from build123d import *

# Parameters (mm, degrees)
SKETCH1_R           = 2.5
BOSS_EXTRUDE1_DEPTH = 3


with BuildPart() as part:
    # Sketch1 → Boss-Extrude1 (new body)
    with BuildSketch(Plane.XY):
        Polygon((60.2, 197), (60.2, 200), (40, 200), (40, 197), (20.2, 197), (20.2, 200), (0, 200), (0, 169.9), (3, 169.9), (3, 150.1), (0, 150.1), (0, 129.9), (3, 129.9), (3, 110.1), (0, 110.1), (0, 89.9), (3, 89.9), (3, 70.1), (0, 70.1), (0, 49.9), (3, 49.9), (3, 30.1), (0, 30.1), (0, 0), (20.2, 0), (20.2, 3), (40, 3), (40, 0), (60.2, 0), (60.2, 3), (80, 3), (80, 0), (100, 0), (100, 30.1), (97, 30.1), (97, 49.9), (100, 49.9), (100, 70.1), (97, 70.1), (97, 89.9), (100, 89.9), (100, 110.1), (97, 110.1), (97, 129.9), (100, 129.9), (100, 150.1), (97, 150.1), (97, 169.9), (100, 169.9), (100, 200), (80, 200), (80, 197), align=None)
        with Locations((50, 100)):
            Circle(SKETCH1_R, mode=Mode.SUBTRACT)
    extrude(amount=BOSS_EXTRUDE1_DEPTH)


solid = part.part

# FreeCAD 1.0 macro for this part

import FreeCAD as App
import Part
import Sketcher

V = App.Vector


def add_polygon(sketch, points):
    """Adds a closed chain of lines whose ends are joined by coincident constraints."""
    first, n = sketch.GeometryCount, len(points)
    for a, b in zip(points, points[1:] + points[:1]):
        sketch.addGeometry(Part.LineSegment(App.Vector(*a, 0), App.Vector(*b, 0)), False)
    for i in range(n):
        sketch.addConstraint(Sketcher.Constraint("Coincident", first + i, 2, first + (i + 1) % n, 1))

doc = App.newDocument("Part")
body = doc.addObject("PartDesign::Body", "Body")

# Sketch on XY plane
sketch1 = doc.addObject("Sketcher::SketchObject", "Sketch")
body.addObject(sketch1)
sketch1.AttachmentSupport = (doc.XY_Plane, [""])
sketch1.MapMode = "FlatFace"
add_polygon(sketch1, [(60.2, 197), (60.2, 200), (40, 200), (40, 197), (20.2, 197), (20.2, 200), (0, 200), (0, 169.9), (3, 169.9), (3, 150.1), (0, 150.1), (0, 129.9), (3, 129.9), (3, 110.1), (0, 110.1), (0, 89.9), (3, 89.9), (3, 70.1), (0, 70.1), (0, 49.9), (3, 49.9), (3, 30.1), (0, 30.1), (0, 0), (20.2, 0), (20.2, 3), (40, 3), (40, 0), (60.2, 0), (60.2, 3), (80, 3), (80, 0), (100, 0), (100, 30.1), (97, 30.1), (97, 49.9), (100, 49.9), (100, 70.1), (97, 70.1), (97, 89.9), (100, 89.9), (100, 110.1), (97, 110.1), (97, 129.9), (100, 129.9), (100, 150.1), (97, 150.1), (97, 169.9), (100, 169.9), (100, 200), (80, 200), (80, 197)])  # lines 0-51
sketch1.addGeometry(Part.Circle(V(50, 100, 0), V(0, 0, 1), 2.5), False)  # 52
sketch1.addConstraint([
    Sketcher.Constraint("Vertical", 0),
    Sketcher.Constraint("Horizontal", 1),
    Sketcher.Constraint("Vertical", 2),
    Sketcher.Constraint("Horizontal", 3),
    Sketcher.Constraint("Vertical", 4),
    Sketcher.Constraint("Horizontal", 5),
    Sketcher.Constraint("Vertical", 6),
    Sketcher.Constraint("Horizontal", 7),
    Sketcher.Constraint("Vertical", 8),
    Sketcher.Constraint("Horizontal", 9),
    Sketcher.Constraint("Vertical", 10),
    Sketcher.Constraint("Horizontal", 11),
    Sketcher.Constraint("Vertical", 12),
    Sketcher.Constraint("Horizontal", 13),
    Sketcher.Constraint("Vertical", 14),
    Sketcher.Constraint("Horizontal", 15),
    Sketcher.Constraint("Vertical", 16),
    Sketcher.Constraint("Horizontal", 17),
    Sketcher.Constraint("Vertical", 18),
    Sketcher.Constraint("Horizontal", 19),
    Sketcher.Constraint("Vertical", 20),
    Sketcher.Constraint("Horizontal", 21),
    Sketcher.Constraint("Vertical", 22),
    Sketcher.Constraint("Horizontal", 23),
    Sketcher.Constraint("Vertical", 24),
    Sketcher.Constraint("Horizontal", 25),
    Sketcher.Constraint("Vertical", 26),
    Sketcher.Constraint("Horizontal", 27),
    Sketcher.Constraint("Vertical", 28),
    Sketcher.Constraint("Horizontal", 29),
    Sketcher.Constraint("Vertical", 30),
    Sketcher.Constraint("Horizontal", 31),
    Sketcher.Constraint("Vertical", 32),
    Sketcher.Constraint("Horizontal", 33),
    Sketcher.Constraint("Vertical", 34),
    Sketcher.Constraint("Horizontal", 35),
    Sketcher.Constraint("Vertical", 36),
    Sketcher.Constraint("Horizontal", 37),
    Sketcher.Constraint("Vertical", 38),
    Sketcher.Constraint("Horizontal", 39),
    Sketcher.Constraint("Vertical", 40),
    Sketcher.Constraint("Horizontal", 41),
    Sketcher.Constraint("Vertical", 42),
    Sketcher.Constraint("Horizontal", 43),
    Sketcher.Constraint("Vertical", 44),
    Sketcher.Constraint("Horizontal", 45),
    Sketcher.Constraint("Vertical", 46),
    Sketcher.Constraint("Horizontal", 47),
    Sketcher.Constraint("Vertical", 48),
    Sketcher.Constraint("Horizontal", 49),
    Sketcher.Constraint("Vertical", 50),
    Sketcher.Constraint("Horizontal", 51),
    Sketcher.Constraint("Coincident", 22, 2, -1, 1),
    Sketcher.Constraint("PointOnObject", 5, 2, -2),
    Sketcher.Constraint("PointOnObject", 9, 2, -2),
    Sketcher.Constraint("PointOnObject", 13, 2, -2),
    Sketcher.Constraint("PointOnObject", 17, 2, -2),
    Sketcher.Constraint("PointOnObject", 26, 2, -1),
    Sketcher.Constraint("PointOnObject", 30, 2, -1),
    Sketcher.Constraint("Horizontal", 1, 2, 4, 2),
    Sketcher.Constraint("Horizontal", 25, 2, 28, 2),
    Sketcher.Constraint("Horizontal", 21, 2, 32, 2),
    Sketcher.Constraint("Horizontal", 19, 2, 34, 2),
    Sketcher.Constraint("Horizontal", 17, 2, 36, 2),
    Sketcher.Constraint("Horizontal", 15, 2, 38, 2),
    Sketcher.Constraint("Horizontal", 13, 2, 40, 2),
    Sketcher.Constraint("Horizontal", 11, 2, 42, 2),
    Sketcher.Constraint("Horizontal", 9, 2, 44, 2),
    Sketcher.Constraint("Horizontal", 7, 2, 46, 2),
    Sketcher.Constraint("Horizontal", 5, 2, 48, 2),
    Sketcher.Constraint("Horizontal", 3, 2, 50, 2),
    Sketcher.Constraint("Vertical", 8, 2, 11, 2),
    Sketcher.Constraint("Vertical", 12, 2, 15, 2),
    Sketcher.Constraint("Vertical", 16, 2, 19, 2),
    Sketcher.Constraint("Vertical", 4, 2, 23, 2),
    Sketcher.Constraint("Vertical", 2, 2, 25, 2),
    Sketcher.Constraint("Vertical", 0, 2, 27, 2),
    Sketcher.Constraint("Vertical", 32, 2, 35, 2),
    Sketcher.Constraint("Vertical", 34, 2, 37, 2),
    Sketcher.Constraint("Vertical", 36, 2, 39, 2),
    Sketcher.Constraint("Vertical", 38, 2, 41, 2),
    Sketcher.Constraint("Vertical", 40, 2, 43, 2),
    Sketcher.Constraint("Vertical", 42, 2, 45, 2),
    Sketcher.Constraint("Vertical", 44, 2, 47, 2),
    Sketcher.Constraint("Vertical", 30, 2, 49, 2),
    Sketcher.Constraint("Equal", 1, 5),
    Sketcher.Constraint("Equal", 25, 29),
    Sketcher.Constraint("Equal", 21, 33),
    Sketcher.Constraint("Equal", 47, 0),
    Sketcher.Constraint("Equal", 51, 8),
    Sketcher.Constraint("Equal", 27, 10),
    Sketcher.Constraint("Equal", 8, 12),
    Sketcher.Constraint("Equal", 10, 14),
    Sketcher.Constraint("Equal", 12, 16),
    Sketcher.Constraint("Equal", 14, 18),
    Sketcher.Constraint("Equal", 16, 20),
    Sketcher.Constraint("Equal", 6, 22),
    Sketcher.Constraint("Equal", 4, 24),
    Sketcher.Constraint("Diameter", 52, 5.0),
    Sketcher.Constraint("DistanceX", 7, 1, 7, 2, 3.0),
    Sketcher.Constraint("DistanceX", 31, 1, 31, 2, 20.0),
    Sketcher.Constraint("DistanceX", 1, 2, 1, 1, 20.2),
    Sketcher.Constraint("DistanceX", 3, 2, 3, 1, 19.8),
    Sketcher.Constraint("DistanceY", 6, 2, 6, 1, 30.1),
    Sketcher.Constraint("DistanceX", -1, 1, 52, 3, 50.0),
    Sketcher.Constraint("DistanceY", -1, 1, 52, 3, 100.0),
])
pad1 = doc.addObject("PartDesign::Pad", "Pad")
body.addObject(pad1)
pad1.Profile = sketch1
pad1.Length = 3

doc.recompute()
